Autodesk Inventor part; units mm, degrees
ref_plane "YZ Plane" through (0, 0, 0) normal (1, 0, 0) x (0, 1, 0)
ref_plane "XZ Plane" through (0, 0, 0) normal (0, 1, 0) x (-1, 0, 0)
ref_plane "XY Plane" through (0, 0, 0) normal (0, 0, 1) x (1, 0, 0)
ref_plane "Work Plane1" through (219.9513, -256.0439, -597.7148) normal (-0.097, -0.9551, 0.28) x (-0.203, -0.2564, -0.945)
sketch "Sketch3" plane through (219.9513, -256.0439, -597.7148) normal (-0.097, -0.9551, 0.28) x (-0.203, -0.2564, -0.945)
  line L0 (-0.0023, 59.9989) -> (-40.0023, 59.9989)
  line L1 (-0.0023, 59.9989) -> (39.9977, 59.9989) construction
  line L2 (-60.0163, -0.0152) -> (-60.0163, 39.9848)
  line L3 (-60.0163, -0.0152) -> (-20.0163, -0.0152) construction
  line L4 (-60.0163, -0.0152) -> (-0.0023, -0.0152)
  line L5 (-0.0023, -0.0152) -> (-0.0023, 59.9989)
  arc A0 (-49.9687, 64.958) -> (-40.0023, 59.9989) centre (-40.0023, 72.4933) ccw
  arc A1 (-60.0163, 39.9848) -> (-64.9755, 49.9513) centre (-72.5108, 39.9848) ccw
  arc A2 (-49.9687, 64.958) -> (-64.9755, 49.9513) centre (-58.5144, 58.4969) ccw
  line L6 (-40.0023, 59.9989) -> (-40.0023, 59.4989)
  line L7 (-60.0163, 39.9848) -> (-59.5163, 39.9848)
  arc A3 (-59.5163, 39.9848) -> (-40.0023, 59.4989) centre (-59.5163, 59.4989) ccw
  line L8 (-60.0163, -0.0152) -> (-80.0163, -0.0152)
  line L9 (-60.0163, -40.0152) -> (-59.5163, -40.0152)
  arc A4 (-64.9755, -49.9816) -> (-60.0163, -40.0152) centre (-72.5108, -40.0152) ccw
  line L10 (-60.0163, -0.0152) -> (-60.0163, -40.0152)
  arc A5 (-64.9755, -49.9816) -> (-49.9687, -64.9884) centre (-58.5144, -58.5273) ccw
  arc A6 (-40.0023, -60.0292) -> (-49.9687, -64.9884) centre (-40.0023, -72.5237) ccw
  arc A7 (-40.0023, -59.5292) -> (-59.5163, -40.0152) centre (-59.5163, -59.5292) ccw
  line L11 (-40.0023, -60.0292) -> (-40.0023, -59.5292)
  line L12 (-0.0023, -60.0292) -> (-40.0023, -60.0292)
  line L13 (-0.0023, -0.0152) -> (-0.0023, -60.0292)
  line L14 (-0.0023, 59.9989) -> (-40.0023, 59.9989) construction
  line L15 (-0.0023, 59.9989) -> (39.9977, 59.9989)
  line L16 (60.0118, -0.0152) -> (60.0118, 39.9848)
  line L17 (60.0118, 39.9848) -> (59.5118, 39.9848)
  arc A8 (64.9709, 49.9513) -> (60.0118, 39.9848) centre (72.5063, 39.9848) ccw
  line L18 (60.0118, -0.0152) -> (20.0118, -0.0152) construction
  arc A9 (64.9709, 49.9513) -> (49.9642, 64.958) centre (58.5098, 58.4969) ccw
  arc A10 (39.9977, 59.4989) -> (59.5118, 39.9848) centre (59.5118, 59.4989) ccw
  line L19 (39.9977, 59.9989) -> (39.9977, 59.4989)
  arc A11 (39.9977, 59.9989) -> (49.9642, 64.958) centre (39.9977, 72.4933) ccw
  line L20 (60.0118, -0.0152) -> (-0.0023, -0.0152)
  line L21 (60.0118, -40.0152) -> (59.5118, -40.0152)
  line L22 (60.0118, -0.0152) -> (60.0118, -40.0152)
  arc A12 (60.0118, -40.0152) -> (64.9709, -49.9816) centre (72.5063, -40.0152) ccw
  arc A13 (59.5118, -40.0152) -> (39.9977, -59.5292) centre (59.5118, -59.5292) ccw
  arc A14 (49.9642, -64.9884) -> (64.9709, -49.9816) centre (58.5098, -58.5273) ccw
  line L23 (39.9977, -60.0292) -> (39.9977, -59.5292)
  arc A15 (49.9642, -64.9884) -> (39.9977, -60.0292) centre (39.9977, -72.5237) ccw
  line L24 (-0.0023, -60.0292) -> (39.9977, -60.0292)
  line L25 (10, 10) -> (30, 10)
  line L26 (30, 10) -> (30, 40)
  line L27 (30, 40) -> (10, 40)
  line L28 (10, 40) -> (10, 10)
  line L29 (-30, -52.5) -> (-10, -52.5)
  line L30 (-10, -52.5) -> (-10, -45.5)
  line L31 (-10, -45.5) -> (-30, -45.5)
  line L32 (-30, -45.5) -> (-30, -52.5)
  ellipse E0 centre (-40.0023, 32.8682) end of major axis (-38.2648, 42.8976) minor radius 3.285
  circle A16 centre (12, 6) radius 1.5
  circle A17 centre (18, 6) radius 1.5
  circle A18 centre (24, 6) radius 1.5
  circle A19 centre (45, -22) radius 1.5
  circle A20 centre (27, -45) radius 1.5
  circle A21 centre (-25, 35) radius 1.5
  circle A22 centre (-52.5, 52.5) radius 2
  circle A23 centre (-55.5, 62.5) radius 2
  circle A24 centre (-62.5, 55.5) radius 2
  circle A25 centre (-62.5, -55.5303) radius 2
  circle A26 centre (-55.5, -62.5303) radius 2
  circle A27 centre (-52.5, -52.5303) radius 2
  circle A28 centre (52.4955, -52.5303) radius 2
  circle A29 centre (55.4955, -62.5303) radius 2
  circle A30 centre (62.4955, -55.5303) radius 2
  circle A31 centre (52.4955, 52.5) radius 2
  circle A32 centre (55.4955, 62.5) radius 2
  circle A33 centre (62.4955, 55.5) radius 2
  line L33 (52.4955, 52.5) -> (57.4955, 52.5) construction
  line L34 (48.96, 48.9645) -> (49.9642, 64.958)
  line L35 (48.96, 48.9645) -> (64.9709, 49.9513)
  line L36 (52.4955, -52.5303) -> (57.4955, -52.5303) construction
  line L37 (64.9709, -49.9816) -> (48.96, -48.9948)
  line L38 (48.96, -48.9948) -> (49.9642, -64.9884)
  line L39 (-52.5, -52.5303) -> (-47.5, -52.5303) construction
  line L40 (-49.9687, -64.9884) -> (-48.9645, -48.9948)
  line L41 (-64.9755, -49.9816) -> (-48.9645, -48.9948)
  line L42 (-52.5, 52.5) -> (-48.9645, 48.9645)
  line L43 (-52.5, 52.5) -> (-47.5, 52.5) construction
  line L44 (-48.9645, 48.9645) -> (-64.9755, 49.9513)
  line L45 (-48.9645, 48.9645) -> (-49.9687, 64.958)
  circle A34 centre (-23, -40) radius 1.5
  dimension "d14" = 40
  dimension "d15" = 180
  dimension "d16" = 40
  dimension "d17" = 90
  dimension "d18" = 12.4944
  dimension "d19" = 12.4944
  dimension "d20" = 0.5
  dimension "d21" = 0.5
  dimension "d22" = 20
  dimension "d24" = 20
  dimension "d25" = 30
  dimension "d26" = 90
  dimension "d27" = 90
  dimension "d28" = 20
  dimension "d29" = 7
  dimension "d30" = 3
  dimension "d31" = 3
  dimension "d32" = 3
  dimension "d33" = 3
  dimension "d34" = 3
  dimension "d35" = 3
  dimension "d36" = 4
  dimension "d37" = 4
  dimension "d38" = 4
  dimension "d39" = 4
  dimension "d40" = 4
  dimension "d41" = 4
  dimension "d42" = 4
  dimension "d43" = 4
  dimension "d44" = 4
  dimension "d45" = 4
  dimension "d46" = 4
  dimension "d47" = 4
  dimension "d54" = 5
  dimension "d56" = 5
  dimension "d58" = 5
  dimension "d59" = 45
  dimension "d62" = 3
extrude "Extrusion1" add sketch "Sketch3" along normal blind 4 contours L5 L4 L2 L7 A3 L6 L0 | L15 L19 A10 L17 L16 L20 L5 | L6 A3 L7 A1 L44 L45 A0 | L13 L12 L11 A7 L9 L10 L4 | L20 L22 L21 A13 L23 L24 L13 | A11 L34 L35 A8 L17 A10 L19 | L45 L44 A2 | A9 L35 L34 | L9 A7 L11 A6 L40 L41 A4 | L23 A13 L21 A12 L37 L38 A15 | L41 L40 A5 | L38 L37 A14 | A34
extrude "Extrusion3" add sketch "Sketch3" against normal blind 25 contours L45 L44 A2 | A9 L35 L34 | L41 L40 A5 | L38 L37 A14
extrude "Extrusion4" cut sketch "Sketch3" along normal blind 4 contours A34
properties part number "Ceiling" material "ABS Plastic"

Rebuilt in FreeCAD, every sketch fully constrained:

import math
import FreeCAD as App
import Part
import Sketcher
Q = App.Units.Quantity

doc = App.newDocument("Part")
params = doc.addObject("Spreadsheet::Sheet", "Params")
for row, (alias, value) in enumerate([
    ("sketch1_diameter", "3 mm"),
    ("sketch1_diameter2", "4 mm"),
    ("sketch1_width", "20 mm"),
    ("sketch1_height", "30 mm"),
    ("sketch1_height2", "7 mm"),
    ("pad1_length", "4 mm"),
    ("sketch2_diameter", "4 mm"),
    ("pad2_length", "25 mm"),
    ("sketch3_diameter", "3 mm"),
    ("pocket1_length", "4 mm"),
], start=1):
    params.set(f"A{row}", alias)
    params.set(f"B{row}", "=" + value)
    params.setAlias(f"B{row}", alias)

body = doc.addObject("PartDesign::Body", "Body")

sketch1 = doc.addObject("Sketcher::SketchObject", "Sketch")
body.addObject(sketch1)
sketch1.Placement = App.Placement(App.Vector(219.9513, -256.0439, -597.7148), App.Rotation(App.Vector(-0.203004614, -0.256423611, -0.945005851), App.Vector(0.974361515, -0.148505002, -0.169014503), App.Vector(-0.096998787, -0.955088057, 0.279996499), "ZXY"))
sketch1.addGeometry([
    Part.LineSegment(App.Vector(-60.0163, 39.9848, 0), App.Vector(-60.0163, -40.0152, 0)),
    Part.ArcOfCircle(Part.Circle(App.Vector(-72.5108, -40.0152, 0), App.Vector(0, 0, 1), 12.494394), math.radians(-52.908153), math.radians(0)),
    Part.ArcOfCircle(Part.Circle(App.Vector(-58.5144, -58.5273, 0), App.Vector(0, 0, 1), 10.7133), math.radians(127.09163), math.radians(322.90837)),
    Part.ArcOfCircle(Part.Circle(App.Vector(-40.0023, -72.5237, 0), App.Vector(0, 0, 1), 12.4945), math.radians(90), math.radians(142.908153)),
    Part.LineSegment(App.Vector(-40.0023, -60.0292, 0), App.Vector(39.9977, -60.0292, 0)),
    Part.ArcOfCircle(Part.Circle(App.Vector(39.9977, -72.5237, 0), App.Vector(0, 0, 1), 12.494474), math.radians(37.09157), math.radians(90)),
    Part.ArcOfCircle(Part.Circle(App.Vector(58.5098, -58.5273, 0), App.Vector(0, 0, 1), 10.71322), math.radians(-142.908047), math.radians(52.90837)),
    Part.ArcOfCircle(Part.Circle(App.Vector(72.5063, -40.0152, 0), App.Vector(0, 0, 1), 12.4945), math.radians(180), math.radians(232.907787)),
    Part.LineSegment(App.Vector(60.0118, -40.0152, 0), App.Vector(60.0118, 39.9848, 0)),
    Part.ArcOfCircle(Part.Circle(App.Vector(72.5063, 39.9848, 0), App.Vector(0, 0, 1), 12.494534), math.radians(127.091936), math.radians(180)),
    Part.ArcOfCircle(Part.Circle(App.Vector(58.5098, 58.4969, 0), App.Vector(0, 0, 1), 10.71322), math.radians(-52.908047), math.radians(142.908047)),
    Part.ArcOfCircle(Part.Circle(App.Vector(39.9977, 72.4933, 0), App.Vector(0, 0, 1), 12.4944), math.radians(-90), math.radians(-37.09157)),
    Part.LineSegment(App.Vector(39.9977, 59.9989, 0), App.Vector(-40.0023, 59.9989, 0)),
    Part.ArcOfCircle(Part.Circle(App.Vector(-40.0023, 72.4933, 0), App.Vector(0, 0, 1), 12.494394), math.radians(-142.908153), math.radians(-90)),
    Part.ArcOfCircle(Part.Circle(App.Vector(-58.5144, 58.4969, 0), App.Vector(0, 0, 1), 10.7133), math.radians(37.09163), math.radians(232.908047)),
    Part.ArcOfCircle(Part.Circle(App.Vector(-72.5108, 39.9848, 0), App.Vector(0, 0, 1), 12.4945), math.radians(0), math.radians(52.90843)),
    Part.Ellipse(App.Vector(-38.2648, 42.8976, 0), App.Vector(-43.239087, 33.428943, 0), App.Vector(-40.0023, 32.8682, 0)),
    Part.Circle(App.Vector(-25, 35, 0), App.Vector(0, 0, 1), 1.5),
    Part.LineSegment(App.Vector(10, 10, 0), App.Vector(10, 40, 0)),
    Part.LineSegment(App.Vector(10, 40, 0), App.Vector(30, 40, 0)),
    Part.LineSegment(App.Vector(30, 40, 0), App.Vector(30, 10, 0)),
    Part.LineSegment(App.Vector(30, 10, 0), App.Vector(10, 10, 0)),
    Part.Circle(App.Vector(12, 6, 0), App.Vector(0, 0, 1), 1.5),
    Part.Circle(App.Vector(18, 6, 0), App.Vector(0, 0, 1), 1.5),
    Part.Circle(App.Vector(24, 6, 0), App.Vector(0, 0, 1), 1.5),
    Part.LineSegment(App.Vector(-10, -52.5, 0), App.Vector(-30, -52.5, 0)),
    Part.LineSegment(App.Vector(-30, -52.5, 0), App.Vector(-30, -45.5, 0)),
    Part.LineSegment(App.Vector(-30, -45.5, 0), App.Vector(-10, -45.5, 0)),
    Part.LineSegment(App.Vector(-10, -45.5, 0), App.Vector(-10, -52.5, 0)),
    Part.Circle(App.Vector(45, -22, 0), App.Vector(0, 0, 1), 1.5),
    Part.Circle(App.Vector(27, -45, 0), App.Vector(0, 0, 1), 1.5),
    Part.Circle(App.Vector(-55.5, 62.5, 0), App.Vector(0, 0, 1), 2),
    Part.Circle(App.Vector(-62.5, 55.5, 0), App.Vector(0, 0, 1), 2),
    Part.Circle(App.Vector(-52.5, 52.5, 0), App.Vector(0, 0, 1), 2),
    Part.Circle(App.Vector(62.4955, 55.5, 0), App.Vector(0, 0, 1), 2),
    Part.Circle(App.Vector(55.4955, 62.5, 0), App.Vector(0, 0, 1), 2),
    Part.Circle(App.Vector(52.4955, 52.5, 0), App.Vector(0, 0, 1), 2),
    Part.Circle(App.Vector(-62.5, -55.5303, 0), App.Vector(0, 0, 1), 2),
    Part.Circle(App.Vector(-52.5, -52.5303, 0), App.Vector(0, 0, 1), 2),
    Part.Circle(App.Vector(-55.5, -62.5303, 0), App.Vector(0, 0, 1), 2),
    Part.Circle(App.Vector(52.4955, -52.5303, 0), App.Vector(0, 0, 1), 2),
    Part.Circle(App.Vector(62.4955, -55.5303, 0), App.Vector(0, 0, 1), 2),
    Part.Circle(App.Vector(55.4955, -62.5303, 0), App.Vector(0, 0, 1), 2),
], False)
sketch1.addConstraint([
    Sketcher.Constraint("Block", 16),
    Sketcher.Constraint("Tangent", 0, 2, 1, 2),
    Sketcher.Constraint("Tangent", 1, 1, 2, 1),
    Sketcher.Constraint("Tangent", 2, 2, 3, 2),
    Sketcher.Constraint("Tangent", 3, 1, 4, 1),
    Sketcher.Constraint("Tangent", 4, 2, 5, 2),
    Sketcher.Constraint("Tangent", 5, 1, 6, 1),
    Sketcher.Constraint("Tangent", 6, 2, 7, 2),
    Sketcher.Constraint("Tangent", 7, 1, 8, 1),
    Sketcher.Constraint("Tangent", 8, 2, 9, 2),
    Sketcher.Constraint("Tangent", 9, 1, 10, 1),
    Sketcher.Constraint("Tangent", 10, 2, 11, 2),
    Sketcher.Constraint("Tangent", 11, 1, 12, 1),
    Sketcher.Constraint("Tangent", 12, 2, 13, 2),
    Sketcher.Constraint("Tangent", 13, 1, 14, 1),
    Sketcher.Constraint("Tangent", 14, 2, 15, 2),
    Sketcher.Constraint("Tangent", 15, 1, 0, 1),
    Sketcher.Constraint("Coincident", 18, 2, 19, 1),
    Sketcher.Constraint("Coincident", 19, 2, 20, 1),
    Sketcher.Constraint("Coincident", 20, 2, 21, 1),
    Sketcher.Constraint("Coincident", 21, 2, 18, 1),
    Sketcher.Constraint("Coincident", 25, 2, 26, 1),
    Sketcher.Constraint("Coincident", 26, 2, 27, 1),
    Sketcher.Constraint("Coincident", 27, 2, 28, 1),
    Sketcher.Constraint("Coincident", 28, 2, 25, 1),
    Sketcher.Constraint("Vertical", 0),
    Sketcher.Constraint("Horizontal", 4),
    Sketcher.Constraint("Vertical", 8),
    Sketcher.Constraint("Horizontal", 12),
    Sketcher.Constraint("Vertical", 18),
    Sketcher.Constraint("Horizontal", 19),
    Sketcher.Constraint("Vertical", 20),
    Sketcher.Constraint("Horizontal", 21),
    Sketcher.Constraint("Horizontal", 25),
    Sketcher.Constraint("Vertical", 26),
    Sketcher.Constraint("Horizontal", 27),
    Sketcher.Constraint("Vertical", 28),
    Sketcher.Constraint("Equal", 1, 3),
    Sketcher.Constraint("Equal", 3, 5),
    Sketcher.Constraint("Equal", 2, 6),
    Sketcher.Constraint("Equal", 5, 7),
    Sketcher.Constraint("Equal", 7, 9),
    Sketcher.Constraint("Equal", 6, 10),
    Sketcher.Constraint("Equal", 9, 11),
    Sketcher.Constraint("Equal", 11, 13),
    Sketcher.Constraint("Equal", 10, 14),
    Sketcher.Constraint("Equal", 13, 15),
    Sketcher.Constraint("Equal", 17, 22),
    Sketcher.Constraint("Equal", 22, 23),
    Sketcher.Constraint("Equal", 23, 24),
    Sketcher.Constraint("Equal", 24, 29),
    Sketcher.Constraint("Equal", 29, 30),
    Sketcher.Constraint("Equal", 31, 32),
    Sketcher.Constraint("Equal", 32, 33),
    Sketcher.Constraint("Equal", 33, 34),
    Sketcher.Constraint("Equal", 34, 35),
    Sketcher.Constraint("Equal", 35, 36),
    Sketcher.Constraint("Equal", 36, 37),
    Sketcher.Constraint("Equal", 37, 38),
    Sketcher.Constraint("Equal", 38, 39),
    Sketcher.Constraint("Equal", 39, 40),
    Sketcher.Constraint("Equal", 40, 41),
    Sketcher.Constraint("Equal", 41, 42),
    Sketcher.Constraint("Horizontal", 2, 3, 6, 3),
    Sketcher.Constraint("Horizontal", 1, 3, 7, 3),
    Sketcher.Constraint("Horizontal", 10, 3, 14, 3),
    Sketcher.Constraint("Horizontal", 9, 3, 15, 3),
    Sketcher.Constraint("Horizontal", 22, 3, 23, 3),
    Sketcher.Constraint("Horizontal", 23, 3, 24, 3),
    Sketcher.Constraint("Horizontal", 32, 3, 34, 3),
    Sketcher.Constraint("Horizontal", 31, 3, 35, 3),
    Sketcher.Constraint("Horizontal", 33, 3, 36, 3),
    Sketcher.Constraint("Horizontal", 38, 3, 40, 3),
    Sketcher.Constraint("Horizontal", 37, 3, 41, 3),
    Sketcher.Constraint("Horizontal", 39, 3, 42, 3),
    Sketcher.Constraint("Vertical", 6, 3, 10, 3),
    Sketcher.Constraint("Vertical", 5, 3, 11, 3),
    Sketcher.Constraint("Vertical", 32, 3, 37, 3),
    Sketcher.Constraint("Vertical", 33, 3, 38, 3),
    Sketcher.Constraint("Vertical", 31, 3, 39, 3),
    Sketcher.Constraint("Vertical", 36, 3, 40, 3),
    Sketcher.Constraint("Vertical", 34, 3, 41, 3),
    Sketcher.Constraint("Vertical", 35, 3, 42, 3),
    Sketcher.Constraint("Equal", 21, 25),
    Sketcher.Constraint("Equal", 12, 0),
    Sketcher.Constraint("Diameter", 17, Q("3 mm")),
    Sketcher.Constraint("Diameter", 31, Q("4 mm")),
    Sketcher.Constraint("DistanceX", 19, 1, 19, 2, Q("20 mm")),
    Sketcher.Constraint("DistanceY", 18, 1, 18, 2, Q("30 mm")),
    Sketcher.Constraint("DistanceY", 26, 1, 26, 2, Q("7 mm")),
    Sketcher.Constraint("DistanceX", -1, 1, 29, 3, Q("45 mm")),
    Sketcher.Constraint("DistanceY", 30, 3, -1, 1, Q("45 mm")),
    Sketcher.Constraint("DistanceY", -1, 1, 18, 2, Q("40 mm")),
    Sketcher.Constraint("DistanceX", -1, 1, 19, 2, Q("30 mm")),
    Sketcher.Constraint("DistanceX", 25, 2, -1, 1, Q("30 mm")),
    Sketcher.Constraint("DistanceX", 24, 3, 30, 3, Q("3 mm")),
    Sketcher.Constraint("DistanceX", 32, 3, 31, 3, Q("7 mm")),
    Sketcher.Constraint("DistanceY", 32, 3, 31, 3, Q("7 mm")),
    Sketcher.Constraint("DistanceY", 33, 3, 32, 3, Q("3 mm")),
    Sketcher.Constraint("DistanceX", 31, 3, 33, 3, Q("3 mm")),
    Sketcher.Constraint("DistanceX", 35, 3, 34, 3, Q("7 mm")),
    Sketcher.Constraint("DistanceX", 36, 3, 35, 3, Q("3 mm")),
    Sketcher.Constraint("DistanceY", 37, 3, 38, 3, Q("3 mm")),
    Sketcher.Constraint("DistanceY", 39, 3, 37, 3, Q("7 mm")),
    Sketcher.Constraint("DistanceY", 17, 3, 18, 2, Q("5 mm")),
    Sketcher.Constraint("DistanceY", 24, 3, 20, 2, Q("4 mm")),
    Sketcher.Constraint("Radius", 1, Q("12.4944 mm")),
    Sketcher.Constraint("DistanceY", 27, 2, 30, 3, Q("0.5 mm")),
    Sketcher.Constraint("DistanceX", 4, 1, 4, 2, Q("80 mm")),
    Sketcher.Constraint("DistanceX", 17, 3, -1, 1, Q("25 mm")),
    Sketcher.Constraint("DistanceX", -1, 1, 22, 3, Q("12 mm")),
    Sketcher.Constraint("DistanceX", -1, 1, 23, 3, Q("18 mm")),
    Sketcher.Constraint("DistanceX", -1, 1, 24, 3, Q("24 mm")),
    Sketcher.Constraint("DistanceY", 29, 3, -1, 1, Q("22 mm")),
    Sketcher.Constraint("DistanceX", 31, 3, -1, 1, Q("55.5 mm")),
    Sketcher.Constraint("DistanceY", -1, 1, 31, 3, Q("62.5 mm")),
    Sketcher.Constraint("Radius", 2, Q("10.7133 mm")),
    Sketcher.Constraint("DistanceY", -1, 1, 10, 3, Q("58.497 mm")),
    Sketcher.Constraint("DistanceX", -1, 1, 9, 1, Q("64.971 mm")),
    Sketcher.Constraint("DistanceY", -1, 1, 10, 2, Q("64.958 mm")),
    Sketcher.Constraint("DistanceY", 2, 3, 1, 3, Q("18.512 mm")),
    Sketcher.Constraint("DistanceY", 2, 3, 37, 3, Q("2.997 mm")),
    Sketcher.Constraint("DistanceX", -1, 1, 34, 3, Q("62.4955 mm")),
])
sketch1.setExpression("Constraints[85]", "Params.sketch1_diameter")
sketch1.setExpression("Constraints[86]", "Params.sketch1_diameter2")
sketch1.setExpression("Constraints[87]", "Params.sketch1_width")
sketch1.setExpression("Constraints[88]", "Params.sketch1_height")
sketch1.setExpression("Constraints[89]", "Params.sketch1_height2")
pad1 = doc.addObject("PartDesign::Pad", "Pad")
body.addObject(pad1)
pad1.Profile = sketch1
pad1.setExpression("Length", "Params.pad1_length")

sketch2 = doc.addObject("Sketcher::SketchObject", "Sketch001")
body.addObject(sketch2)
sketch2.Placement = App.Placement(App.Vector(219.9513, -256.0439, -597.7148), App.Rotation(App.Vector(-0.203004614, -0.256423611, -0.945005851), App.Vector(0.974361515, -0.148505002, -0.169014503), App.Vector(-0.096998787, -0.955088057, 0.279996499), "ZXY"))
sketch2.addGeometry([
    Part.LineSegment(App.Vector(-49, 49, 0), App.Vector(-50, 65, 0)),
    Part.ArcOfCircle(Part.Circle(App.Vector(-58.5, 58.5, 0), App.Vector(0, 0, 1), 10.7), math.radians(37), math.radians(233)),
    Part.LineSegment(App.Vector(-65, 50, 0), App.Vector(-49, 49, 0)),
    Part.Circle(App.Vector(-62.5, 55.5, 0), App.Vector(0, 0, 1), 2),
    Part.Circle(App.Vector(-52.5, 52.5, 0), App.Vector(0, 0, 1), 2),
    Part.Circle(App.Vector(-55.5, 62.5, 0), App.Vector(0, 0, 1), 2),
    Part.ArcOfCircle(Part.Circle(App.Vector(58.5, 58.5, 0), App.Vector(0, 0, 1), 10.7), math.radians(-53), math.radians(143)),
    Part.LineSegment(App.Vector(50, 65, 0), App.Vector(49, 49, 0)),
    Part.LineSegment(App.Vector(49, 49, 0), App.Vector(65, 50, 0)),
    Part.Circle(App.Vector(52.5, 52.5, 0), App.Vector(0, 0, 1), 2),
    Part.Circle(App.Vector(62.5, 55.5, 0), App.Vector(0, 0, 1), 2),
    Part.Circle(App.Vector(55.5, 62.5, 0), App.Vector(0, 0, 1), 2),
    Part.LineSegment(App.Vector(-49, -49, 0), App.Vector(-65, -50, 0)),
    Part.ArcOfCircle(Part.Circle(App.Vector(-58.5, -58.5, 0), App.Vector(0, 0, 1), 10.7), math.radians(127), math.radians(323)),
    Part.LineSegment(App.Vector(-50, -65, 0), App.Vector(-49, -49, 0)),
    Part.Circle(App.Vector(-55.5, -62.5, 0), App.Vector(0, 0, 1), 2),
    Part.Circle(App.Vector(-62.5, -55.5, 0), App.Vector(0, 0, 1), 2),
    Part.Circle(App.Vector(-52.5, -52.5, 0), App.Vector(0, 0, 1), 2),
    Part.LineSegment(App.Vector(49, -49, 0), App.Vector(50, -65, 0)),
    Part.ArcOfCircle(Part.Circle(App.Vector(58.5, -58.5, 0), App.Vector(0, 0, 1), 10.7), math.radians(-143), math.radians(53)),
    Part.LineSegment(App.Vector(65, -50, 0), App.Vector(49, -49, 0)),
    Part.Circle(App.Vector(55.5, -62.5, 0), App.Vector(0, 0, 1), 2),
    Part.Circle(App.Vector(52.5, -52.5, 0), App.Vector(0, 0, 1), 2),
    Part.Circle(App.Vector(62.5, -55.5, 0), App.Vector(0, 0, 1), 2),
], False)
sketch2.addConstraint([
    Sketcher.Constraint("Coincident", 0, 2, 1, 1),
    Sketcher.Constraint("Coincident", 1, 2, 2, 1),
    Sketcher.Constraint("Coincident", 2, 2, 0, 1),
    Sketcher.Constraint("Coincident", 6, 2, 7, 1),
    Sketcher.Constraint("Coincident", 7, 2, 8, 1),
    Sketcher.Constraint("Coincident", 8, 2, 6, 1),
    Sketcher.Constraint("Coincident", 12, 2, 13, 1),
    Sketcher.Constraint("Coincident", 13, 2, 14, 1),
    Sketcher.Constraint("Coincident", 14, 2, 12, 1),
    Sketcher.Constraint("Coincident", 18, 2, 19, 1),
    Sketcher.Constraint("Coincident", 19, 2, 20, 1),
    Sketcher.Constraint("Coincident", 20, 2, 18, 1),
    Sketcher.Constraint("Equal", 3, 4),
    Sketcher.Constraint("Equal", 4, 5),
    Sketcher.Constraint("Equal", 1, 6),
    Sketcher.Constraint("Equal", 5, 9),
    Sketcher.Constraint("Equal", 9, 10),
    Sketcher.Constraint("Equal", 10, 11),
    Sketcher.Constraint("Equal", 6, 13),
    Sketcher.Constraint("Equal", 11, 15),
    Sketcher.Constraint("Equal", 15, 16),
    Sketcher.Constraint("Equal", 16, 17),
    Sketcher.Constraint("Equal", 13, 19),
    Sketcher.Constraint("Equal", 17, 21),
    Sketcher.Constraint("Equal", 21, 22),
    Sketcher.Constraint("Equal", 22, 23),
    Sketcher.Constraint("Parallel", 8, 12),
    Sketcher.Constraint("Parallel", 7, 14),
    Sketcher.Constraint("Parallel", 0, 18),
    Sketcher.Constraint("Parallel", 2, 20),
    Sketcher.Constraint("Horizontal", 1, 3, 6, 3),
    Sketcher.Constraint("Horizontal", 4, 3, 9, 3),
    Sketcher.Constraint("Horizontal", 3, 3, 10, 3),
    Sketcher.Constraint("Horizontal", 5, 3, 11, 3),
    Sketcher.Constraint("Horizontal", 13, 3, 19, 3),
    Sketcher.Constraint("Horizontal", 15, 3, 21, 3),
    Sketcher.Constraint("Horizontal", 17, 3, 22, 3),
    Sketcher.Constraint("Horizontal", 16, 3, 23, 3),
    Sketcher.Constraint("Horizontal", 0, 2, 6, 2),
    Sketcher.Constraint("Horizontal", 2, 2, 7, 2),
    Sketcher.Constraint("Horizontal", 1, 2, 8, 2),
    Sketcher.Constraint("Horizontal", 13, 2, 18, 2),
    Sketcher.Constraint("Horizontal", 12, 2, 19, 2),
    Sketcher.Constraint("Vertical", 1, 3, 13, 3),
    Sketcher.Constraint("Vertical", 5, 3, 15, 3),
    Sketcher.Constraint("Vertical", 3, 3, 16, 3),
    Sketcher.Constraint("Vertical", 4, 3, 17, 3),
    Sketcher.Constraint("Vertical", 6, 3, 19, 3),
    Sketcher.Constraint("Vertical", 11, 3, 21, 3),
    Sketcher.Constraint("Vertical", 9, 3, 22, 3),
    Sketcher.Constraint("Vertical", 10, 3, 23, 3),
    Sketcher.Constraint("Vertical", 1, 2, 12, 2),
    Sketcher.Constraint("Vertical", 0, 2, 13, 2),
    Sketcher.Constraint("Vertical", 2, 2, 14, 2),
    Sketcher.Constraint("Diameter", 3, Q("4 mm")),
    Sketcher.Constraint("DistanceY", 4, 3, 3, 3, Q("3 mm")),
    Sketcher.Constraint("DistanceX", 3, 3, 5, 3, Q("7 mm")),
    Sketcher.Constraint("DistanceY", 3, 3, 5, 3, Q("7 mm")),
    Sketcher.Constraint("DistanceX", 5, 3, 4, 3, Q("3 mm")),
    Sketcher.Constraint("DistanceX", 11, 3, 10, 3, Q("7 mm")),
    Sketcher.Constraint("DistanceX", 9, 3, 11, 3, Q("3 mm")),
    Sketcher.Constraint("DistanceY", 15, 3, 16, 3, Q("7 mm")),
    Sketcher.Constraint("DistanceY", 16, 3, 17, 3, Q("3 mm")),
    Sketcher.Constraint("DistanceX", 3, 3, -1, 1, Q("62.5 mm")),
    Sketcher.Constraint("DistanceY", -1, 1, 3, 3, Q("55.5 mm")),
    Sketcher.Constraint("Radius", 1, Q("10.7133 mm")),
    Sketcher.Constraint("DistanceX", -1, 1, 7, 2, Q("48.96 mm")),
    Sketcher.Constraint("DistanceX", 1, 3, 9, 3, Q("111.01 mm")),
    Sketcher.Constraint("DistanceX", 1, 3, 2, 2, Q("9.55 mm")),
    Sketcher.Constraint("Distance", 0, Q("16.025 mm")),
    Sketcher.Constraint("DistanceY", -1, 1, 1, 3, Q("58.497 mm")),
    Sketcher.Constraint("DistanceY", -1, 1, 0, 2, Q("64.958 mm")),
    Sketcher.Constraint("DistanceX", -1, 1, 8, 2, Q("64.971 mm")),
    Sketcher.Constraint("DistanceY", 15, 3, 13, 3, Q("4.003 mm")),
    Sketcher.Constraint("DistanceX", 0, 2, 6, 2, Q("99.933 mm")),
    Sketcher.Constraint("DistanceY", 13, 3, -1, 1, Q("58.5273 mm")),
])
sketch2.setExpression("Constraints[54]", "Params.sketch2_diameter")
pad2 = doc.addObject("PartDesign::Pad", "Pad001")
body.addObject(pad2)
pad2.Profile = sketch2
pad2.setExpression("Length", "Params.pad2_length")
pad2.Reversed = True

sketch3 = doc.addObject("Sketcher::SketchObject", "Sketch002")
body.addObject(sketch3)
sketch3.Placement = App.Placement(App.Vector(219.9513, -256.0439, -597.7148), App.Rotation(App.Vector(-0.203004614, -0.256423611, -0.945005851), App.Vector(0.974361515, -0.148505002, -0.169014503), App.Vector(-0.096998787, -0.955088057, 0.279996499), "ZXY"))
sketch3.addGeometry(Part.Circle(App.Vector(-23, -40, 0), App.Vector(0, 0, 1), 1.5), False)
sketch3.addConstraint([
    Sketcher.Constraint("Diameter", 0, Q("3 mm")),
    Sketcher.Constraint("DistanceY", 0, 3, -1, 1, Q("40 mm")),
    Sketcher.Constraint("DistanceX", 0, 3, -1, 1, Q("23 mm")),
])
sketch3.setExpression("Constraints[0]", "Params.sketch3_diameter")
pocket1 = doc.addObject("PartDesign::Pocket", "Pocket")
body.addObject(pocket1)
pocket1.Profile = sketch3
pocket1.setExpression("Length", "Params.pocket1_length")
pocket1.Reversed = True

doc.recompute()
